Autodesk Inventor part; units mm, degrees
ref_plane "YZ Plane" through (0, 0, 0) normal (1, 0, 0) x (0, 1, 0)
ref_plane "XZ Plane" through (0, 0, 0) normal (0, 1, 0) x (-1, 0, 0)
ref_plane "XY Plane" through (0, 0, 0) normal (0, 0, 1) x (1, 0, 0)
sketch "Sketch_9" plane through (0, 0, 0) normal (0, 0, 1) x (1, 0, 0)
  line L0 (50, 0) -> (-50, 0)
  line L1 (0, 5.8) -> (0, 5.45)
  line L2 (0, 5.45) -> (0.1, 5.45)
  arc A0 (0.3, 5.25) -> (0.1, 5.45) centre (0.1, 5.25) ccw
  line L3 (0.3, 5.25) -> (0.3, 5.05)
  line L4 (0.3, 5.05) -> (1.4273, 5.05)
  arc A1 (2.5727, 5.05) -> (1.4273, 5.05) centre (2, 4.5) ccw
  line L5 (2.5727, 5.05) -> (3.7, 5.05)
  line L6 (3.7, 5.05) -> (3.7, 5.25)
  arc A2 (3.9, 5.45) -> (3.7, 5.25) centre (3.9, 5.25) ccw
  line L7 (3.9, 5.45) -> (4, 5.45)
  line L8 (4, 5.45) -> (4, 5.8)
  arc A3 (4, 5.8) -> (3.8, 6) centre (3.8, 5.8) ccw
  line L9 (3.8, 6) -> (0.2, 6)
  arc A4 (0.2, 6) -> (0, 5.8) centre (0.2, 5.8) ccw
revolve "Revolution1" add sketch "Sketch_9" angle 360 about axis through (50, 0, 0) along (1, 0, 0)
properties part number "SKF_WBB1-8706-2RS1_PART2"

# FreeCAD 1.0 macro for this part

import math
import FreeCAD as App
import Part
import Sketcher

V = App.Vector
Q = App.Units.Quantity

doc = App.newDocument("Part")
params = doc.addObject("Spreadsheet::Sheet", "Params")
for row, (alias, value) in enumerate([
    ("sketch1_radius", "0.2 mm"),
    ("sketch1_width", "0.1 mm"),
    ("sketch1_width2", "3.6 mm"),
    ("sketch1_height", "0.2 mm"),
    ("sketch1_height2", "0.35 mm"),
    ("revolution_angle", "360 deg"),
], start=1):
    params.set(f"A{row}", alias)
    params.set(f"B{row}", "=" + value)
    params.setAlias(f"B{row}", alias)

body = doc.addObject("PartDesign::Body", "Body")

sketch1 = body.newObject("Sketcher::SketchObject", "Sketch")
sketch1.AttachmentSupport = (doc.getObject("XY_Plane"), [""])
sketch1.MapMode = "FlatFace"
sketch1.addGeometry(Part.ArcOfCircle(Part.Circle(V(0.2, 5.8, 0), V(0, 0, 1), 0.2), math.radians(90), math.radians(180)), False)
sketch1.addGeometry(Part.LineSegment(V(0, 5.8, 0), V(0, 5.45, 0)), False)
sketch1.addGeometry(Part.LineSegment(V(0, 5.45, 0), V(0.1, 5.45, 0)), False)
sketch1.addGeometry(Part.ArcOfCircle(Part.Circle(V(0.1, 5.25, 0), V(0, 0, 1), 0.2), math.radians(0), math.radians(90)), False)
sketch1.addGeometry(Part.LineSegment(V(0.3, 5.25, 0), V(0.3, 5.05, 0)), False)
sketch1.addGeometry(Part.LineSegment(V(0.3, 5.05, 0), V(1.4273, 5.05, 0)), False)
sketch1.addGeometry(Part.ArcOfCircle(Part.Circle(V(2, 4.5, 0), V(0, 0, 1), 0.794031), math.radians(43.841688), math.radians(136.158312)), False)
sketch1.addGeometry(Part.LineSegment(V(2.5727, 5.05, 0), V(3.7, 5.05, 0)), False)
sketch1.addGeometry(Part.LineSegment(V(3.7, 5.05, 0), V(3.7, 5.25, 0)), False)
sketch1.addGeometry(Part.ArcOfCircle(Part.Circle(V(3.9, 5.25, 0), V(0, 0, 1), 0.2), math.radians(90), math.radians(180)), False)
sketch1.addGeometry(Part.LineSegment(V(3.9, 5.45, 0), V(4, 5.45, 0)), False)
sketch1.addGeometry(Part.LineSegment(V(4, 5.45, 0), V(4, 5.8, 0)), False)
sketch1.addGeometry(Part.ArcOfCircle(Part.Circle(V(3.8, 5.8, 0), V(0, 0, 1), 0.2), math.radians(0), math.radians(90)), False)
sketch1.addGeometry(Part.LineSegment(V(3.8, 6, 0), V(0.2, 6, 0)), False)
sketch1.addConstraint(Sketcher.Constraint("Tangent", 0, 2, 1, 1))
sketch1.addConstraint(Sketcher.Constraint("Coincident", 1, 2, 2, 1))
sketch1.addConstraint(Sketcher.Constraint("Tangent", 2, 2, 3, 2))
sketch1.addConstraint(Sketcher.Constraint("Tangent", 3, 1, 4, 1))
sketch1.addConstraint(Sketcher.Constraint("Coincident", 4, 2, 5, 1))
sketch1.addConstraint(Sketcher.Constraint("Coincident", 5, 2, 6, 2))
sketch1.addConstraint(Sketcher.Constraint("Coincident", 6, 1, 7, 1))
sketch1.addConstraint(Sketcher.Constraint("Coincident", 7, 2, 8, 1))
sketch1.addConstraint(Sketcher.Constraint("Tangent", 8, 2, 9, 2))
sketch1.addConstraint(Sketcher.Constraint("Tangent", 9, 1, 10, 1))
sketch1.addConstraint(Sketcher.Constraint("Coincident", 10, 2, 11, 1))
sketch1.addConstraint(Sketcher.Constraint("Tangent", 11, 2, 12, 1))
sketch1.addConstraint(Sketcher.Constraint("Tangent", 12, 2, 13, 1))
sketch1.addConstraint(Sketcher.Constraint("Tangent", 13, 2, 0, 1))
sketch1.addConstraint(Sketcher.Constraint("Vertical", 1))
sketch1.addConstraint(Sketcher.Constraint("Horizontal", 2))
sketch1.addConstraint(Sketcher.Constraint("Vertical", 4))
sketch1.addConstraint(Sketcher.Constraint("Horizontal", 5))
sketch1.addConstraint(Sketcher.Constraint("Horizontal", 7))
sketch1.addConstraint(Sketcher.Constraint("Vertical", 8))
sketch1.addConstraint(Sketcher.Constraint("Horizontal", 10))
sketch1.addConstraint(Sketcher.Constraint("Vertical", 11))
sketch1.addConstraint(Sketcher.Constraint("Horizontal", 13))
sketch1.addConstraint(Sketcher.Constraint("Equal", 0, 3))
sketch1.addConstraint(Sketcher.Constraint("Equal", 3, 9))
sketch1.addConstraint(Sketcher.Constraint("Equal", 9, 12))
sketch1.addConstraint(Sketcher.Constraint("PointOnObject", 0, 2, -2))
sketch1.addConstraint(Sketcher.Constraint("Horizontal", 3, 3, 9, 3))
sketch1.addConstraint(Sketcher.Constraint("Horizontal", 5, 2, 6, 1))
sketch1.addConstraint(Sketcher.Constraint("Equal", 5, 7))
sketch1.addConstraint(Sketcher.Constraint("Equal", 2, 10))
sketch1.addConstraint(Sketcher.Constraint("Radius", 0, Q("0.2 mm")))
sketch1.addConstraint(Sketcher.Constraint("DistanceX", 2, 1, 2, 2, Q("0.1 mm")))
sketch1.addConstraint(Sketcher.Constraint("DistanceX", 13, 2, 13, 1, Q("3.6 mm")))
sketch1.addConstraint(Sketcher.Constraint("DistanceY", 4, 2, 4, 1, Q("0.2 mm")))
sketch1.addConstraint(Sketcher.Constraint("DistanceY", -1, 1, 12, 2, Q("6 mm")))
sketch1.addConstraint(Sketcher.Constraint("Radius", 6, Q("0.794 mm")))
sketch1.addConstraint(Sketcher.Constraint("DistanceY", 1, 2, 1, 1, Q("0.35 mm")))
sketch1.addConstraint(Sketcher.Constraint("DistanceY", -1, 1, 6, 3, Q("4.5 mm")))
sketch1.setExpression("Constraints[31]", "Params.sketch1_radius")
sketch1.setExpression("Constraints[32]", "Params.sketch1_width")
sketch1.setExpression("Constraints[33]", "Params.sketch1_width2")
sketch1.setExpression("Constraints[34]", "Params.sketch1_height")
sketch1.setExpression("Constraints[37]", "Params.sketch1_height2")
revolution = body.newObject("PartDesign::Revolution", "Revolution")
revolution.Profile = sketch1
revolution.ReferenceAxis = (sketch1, ["H_Axis"])
revolution.setExpression("Angle", "Params.revolution_angle")

doc.recompute()
